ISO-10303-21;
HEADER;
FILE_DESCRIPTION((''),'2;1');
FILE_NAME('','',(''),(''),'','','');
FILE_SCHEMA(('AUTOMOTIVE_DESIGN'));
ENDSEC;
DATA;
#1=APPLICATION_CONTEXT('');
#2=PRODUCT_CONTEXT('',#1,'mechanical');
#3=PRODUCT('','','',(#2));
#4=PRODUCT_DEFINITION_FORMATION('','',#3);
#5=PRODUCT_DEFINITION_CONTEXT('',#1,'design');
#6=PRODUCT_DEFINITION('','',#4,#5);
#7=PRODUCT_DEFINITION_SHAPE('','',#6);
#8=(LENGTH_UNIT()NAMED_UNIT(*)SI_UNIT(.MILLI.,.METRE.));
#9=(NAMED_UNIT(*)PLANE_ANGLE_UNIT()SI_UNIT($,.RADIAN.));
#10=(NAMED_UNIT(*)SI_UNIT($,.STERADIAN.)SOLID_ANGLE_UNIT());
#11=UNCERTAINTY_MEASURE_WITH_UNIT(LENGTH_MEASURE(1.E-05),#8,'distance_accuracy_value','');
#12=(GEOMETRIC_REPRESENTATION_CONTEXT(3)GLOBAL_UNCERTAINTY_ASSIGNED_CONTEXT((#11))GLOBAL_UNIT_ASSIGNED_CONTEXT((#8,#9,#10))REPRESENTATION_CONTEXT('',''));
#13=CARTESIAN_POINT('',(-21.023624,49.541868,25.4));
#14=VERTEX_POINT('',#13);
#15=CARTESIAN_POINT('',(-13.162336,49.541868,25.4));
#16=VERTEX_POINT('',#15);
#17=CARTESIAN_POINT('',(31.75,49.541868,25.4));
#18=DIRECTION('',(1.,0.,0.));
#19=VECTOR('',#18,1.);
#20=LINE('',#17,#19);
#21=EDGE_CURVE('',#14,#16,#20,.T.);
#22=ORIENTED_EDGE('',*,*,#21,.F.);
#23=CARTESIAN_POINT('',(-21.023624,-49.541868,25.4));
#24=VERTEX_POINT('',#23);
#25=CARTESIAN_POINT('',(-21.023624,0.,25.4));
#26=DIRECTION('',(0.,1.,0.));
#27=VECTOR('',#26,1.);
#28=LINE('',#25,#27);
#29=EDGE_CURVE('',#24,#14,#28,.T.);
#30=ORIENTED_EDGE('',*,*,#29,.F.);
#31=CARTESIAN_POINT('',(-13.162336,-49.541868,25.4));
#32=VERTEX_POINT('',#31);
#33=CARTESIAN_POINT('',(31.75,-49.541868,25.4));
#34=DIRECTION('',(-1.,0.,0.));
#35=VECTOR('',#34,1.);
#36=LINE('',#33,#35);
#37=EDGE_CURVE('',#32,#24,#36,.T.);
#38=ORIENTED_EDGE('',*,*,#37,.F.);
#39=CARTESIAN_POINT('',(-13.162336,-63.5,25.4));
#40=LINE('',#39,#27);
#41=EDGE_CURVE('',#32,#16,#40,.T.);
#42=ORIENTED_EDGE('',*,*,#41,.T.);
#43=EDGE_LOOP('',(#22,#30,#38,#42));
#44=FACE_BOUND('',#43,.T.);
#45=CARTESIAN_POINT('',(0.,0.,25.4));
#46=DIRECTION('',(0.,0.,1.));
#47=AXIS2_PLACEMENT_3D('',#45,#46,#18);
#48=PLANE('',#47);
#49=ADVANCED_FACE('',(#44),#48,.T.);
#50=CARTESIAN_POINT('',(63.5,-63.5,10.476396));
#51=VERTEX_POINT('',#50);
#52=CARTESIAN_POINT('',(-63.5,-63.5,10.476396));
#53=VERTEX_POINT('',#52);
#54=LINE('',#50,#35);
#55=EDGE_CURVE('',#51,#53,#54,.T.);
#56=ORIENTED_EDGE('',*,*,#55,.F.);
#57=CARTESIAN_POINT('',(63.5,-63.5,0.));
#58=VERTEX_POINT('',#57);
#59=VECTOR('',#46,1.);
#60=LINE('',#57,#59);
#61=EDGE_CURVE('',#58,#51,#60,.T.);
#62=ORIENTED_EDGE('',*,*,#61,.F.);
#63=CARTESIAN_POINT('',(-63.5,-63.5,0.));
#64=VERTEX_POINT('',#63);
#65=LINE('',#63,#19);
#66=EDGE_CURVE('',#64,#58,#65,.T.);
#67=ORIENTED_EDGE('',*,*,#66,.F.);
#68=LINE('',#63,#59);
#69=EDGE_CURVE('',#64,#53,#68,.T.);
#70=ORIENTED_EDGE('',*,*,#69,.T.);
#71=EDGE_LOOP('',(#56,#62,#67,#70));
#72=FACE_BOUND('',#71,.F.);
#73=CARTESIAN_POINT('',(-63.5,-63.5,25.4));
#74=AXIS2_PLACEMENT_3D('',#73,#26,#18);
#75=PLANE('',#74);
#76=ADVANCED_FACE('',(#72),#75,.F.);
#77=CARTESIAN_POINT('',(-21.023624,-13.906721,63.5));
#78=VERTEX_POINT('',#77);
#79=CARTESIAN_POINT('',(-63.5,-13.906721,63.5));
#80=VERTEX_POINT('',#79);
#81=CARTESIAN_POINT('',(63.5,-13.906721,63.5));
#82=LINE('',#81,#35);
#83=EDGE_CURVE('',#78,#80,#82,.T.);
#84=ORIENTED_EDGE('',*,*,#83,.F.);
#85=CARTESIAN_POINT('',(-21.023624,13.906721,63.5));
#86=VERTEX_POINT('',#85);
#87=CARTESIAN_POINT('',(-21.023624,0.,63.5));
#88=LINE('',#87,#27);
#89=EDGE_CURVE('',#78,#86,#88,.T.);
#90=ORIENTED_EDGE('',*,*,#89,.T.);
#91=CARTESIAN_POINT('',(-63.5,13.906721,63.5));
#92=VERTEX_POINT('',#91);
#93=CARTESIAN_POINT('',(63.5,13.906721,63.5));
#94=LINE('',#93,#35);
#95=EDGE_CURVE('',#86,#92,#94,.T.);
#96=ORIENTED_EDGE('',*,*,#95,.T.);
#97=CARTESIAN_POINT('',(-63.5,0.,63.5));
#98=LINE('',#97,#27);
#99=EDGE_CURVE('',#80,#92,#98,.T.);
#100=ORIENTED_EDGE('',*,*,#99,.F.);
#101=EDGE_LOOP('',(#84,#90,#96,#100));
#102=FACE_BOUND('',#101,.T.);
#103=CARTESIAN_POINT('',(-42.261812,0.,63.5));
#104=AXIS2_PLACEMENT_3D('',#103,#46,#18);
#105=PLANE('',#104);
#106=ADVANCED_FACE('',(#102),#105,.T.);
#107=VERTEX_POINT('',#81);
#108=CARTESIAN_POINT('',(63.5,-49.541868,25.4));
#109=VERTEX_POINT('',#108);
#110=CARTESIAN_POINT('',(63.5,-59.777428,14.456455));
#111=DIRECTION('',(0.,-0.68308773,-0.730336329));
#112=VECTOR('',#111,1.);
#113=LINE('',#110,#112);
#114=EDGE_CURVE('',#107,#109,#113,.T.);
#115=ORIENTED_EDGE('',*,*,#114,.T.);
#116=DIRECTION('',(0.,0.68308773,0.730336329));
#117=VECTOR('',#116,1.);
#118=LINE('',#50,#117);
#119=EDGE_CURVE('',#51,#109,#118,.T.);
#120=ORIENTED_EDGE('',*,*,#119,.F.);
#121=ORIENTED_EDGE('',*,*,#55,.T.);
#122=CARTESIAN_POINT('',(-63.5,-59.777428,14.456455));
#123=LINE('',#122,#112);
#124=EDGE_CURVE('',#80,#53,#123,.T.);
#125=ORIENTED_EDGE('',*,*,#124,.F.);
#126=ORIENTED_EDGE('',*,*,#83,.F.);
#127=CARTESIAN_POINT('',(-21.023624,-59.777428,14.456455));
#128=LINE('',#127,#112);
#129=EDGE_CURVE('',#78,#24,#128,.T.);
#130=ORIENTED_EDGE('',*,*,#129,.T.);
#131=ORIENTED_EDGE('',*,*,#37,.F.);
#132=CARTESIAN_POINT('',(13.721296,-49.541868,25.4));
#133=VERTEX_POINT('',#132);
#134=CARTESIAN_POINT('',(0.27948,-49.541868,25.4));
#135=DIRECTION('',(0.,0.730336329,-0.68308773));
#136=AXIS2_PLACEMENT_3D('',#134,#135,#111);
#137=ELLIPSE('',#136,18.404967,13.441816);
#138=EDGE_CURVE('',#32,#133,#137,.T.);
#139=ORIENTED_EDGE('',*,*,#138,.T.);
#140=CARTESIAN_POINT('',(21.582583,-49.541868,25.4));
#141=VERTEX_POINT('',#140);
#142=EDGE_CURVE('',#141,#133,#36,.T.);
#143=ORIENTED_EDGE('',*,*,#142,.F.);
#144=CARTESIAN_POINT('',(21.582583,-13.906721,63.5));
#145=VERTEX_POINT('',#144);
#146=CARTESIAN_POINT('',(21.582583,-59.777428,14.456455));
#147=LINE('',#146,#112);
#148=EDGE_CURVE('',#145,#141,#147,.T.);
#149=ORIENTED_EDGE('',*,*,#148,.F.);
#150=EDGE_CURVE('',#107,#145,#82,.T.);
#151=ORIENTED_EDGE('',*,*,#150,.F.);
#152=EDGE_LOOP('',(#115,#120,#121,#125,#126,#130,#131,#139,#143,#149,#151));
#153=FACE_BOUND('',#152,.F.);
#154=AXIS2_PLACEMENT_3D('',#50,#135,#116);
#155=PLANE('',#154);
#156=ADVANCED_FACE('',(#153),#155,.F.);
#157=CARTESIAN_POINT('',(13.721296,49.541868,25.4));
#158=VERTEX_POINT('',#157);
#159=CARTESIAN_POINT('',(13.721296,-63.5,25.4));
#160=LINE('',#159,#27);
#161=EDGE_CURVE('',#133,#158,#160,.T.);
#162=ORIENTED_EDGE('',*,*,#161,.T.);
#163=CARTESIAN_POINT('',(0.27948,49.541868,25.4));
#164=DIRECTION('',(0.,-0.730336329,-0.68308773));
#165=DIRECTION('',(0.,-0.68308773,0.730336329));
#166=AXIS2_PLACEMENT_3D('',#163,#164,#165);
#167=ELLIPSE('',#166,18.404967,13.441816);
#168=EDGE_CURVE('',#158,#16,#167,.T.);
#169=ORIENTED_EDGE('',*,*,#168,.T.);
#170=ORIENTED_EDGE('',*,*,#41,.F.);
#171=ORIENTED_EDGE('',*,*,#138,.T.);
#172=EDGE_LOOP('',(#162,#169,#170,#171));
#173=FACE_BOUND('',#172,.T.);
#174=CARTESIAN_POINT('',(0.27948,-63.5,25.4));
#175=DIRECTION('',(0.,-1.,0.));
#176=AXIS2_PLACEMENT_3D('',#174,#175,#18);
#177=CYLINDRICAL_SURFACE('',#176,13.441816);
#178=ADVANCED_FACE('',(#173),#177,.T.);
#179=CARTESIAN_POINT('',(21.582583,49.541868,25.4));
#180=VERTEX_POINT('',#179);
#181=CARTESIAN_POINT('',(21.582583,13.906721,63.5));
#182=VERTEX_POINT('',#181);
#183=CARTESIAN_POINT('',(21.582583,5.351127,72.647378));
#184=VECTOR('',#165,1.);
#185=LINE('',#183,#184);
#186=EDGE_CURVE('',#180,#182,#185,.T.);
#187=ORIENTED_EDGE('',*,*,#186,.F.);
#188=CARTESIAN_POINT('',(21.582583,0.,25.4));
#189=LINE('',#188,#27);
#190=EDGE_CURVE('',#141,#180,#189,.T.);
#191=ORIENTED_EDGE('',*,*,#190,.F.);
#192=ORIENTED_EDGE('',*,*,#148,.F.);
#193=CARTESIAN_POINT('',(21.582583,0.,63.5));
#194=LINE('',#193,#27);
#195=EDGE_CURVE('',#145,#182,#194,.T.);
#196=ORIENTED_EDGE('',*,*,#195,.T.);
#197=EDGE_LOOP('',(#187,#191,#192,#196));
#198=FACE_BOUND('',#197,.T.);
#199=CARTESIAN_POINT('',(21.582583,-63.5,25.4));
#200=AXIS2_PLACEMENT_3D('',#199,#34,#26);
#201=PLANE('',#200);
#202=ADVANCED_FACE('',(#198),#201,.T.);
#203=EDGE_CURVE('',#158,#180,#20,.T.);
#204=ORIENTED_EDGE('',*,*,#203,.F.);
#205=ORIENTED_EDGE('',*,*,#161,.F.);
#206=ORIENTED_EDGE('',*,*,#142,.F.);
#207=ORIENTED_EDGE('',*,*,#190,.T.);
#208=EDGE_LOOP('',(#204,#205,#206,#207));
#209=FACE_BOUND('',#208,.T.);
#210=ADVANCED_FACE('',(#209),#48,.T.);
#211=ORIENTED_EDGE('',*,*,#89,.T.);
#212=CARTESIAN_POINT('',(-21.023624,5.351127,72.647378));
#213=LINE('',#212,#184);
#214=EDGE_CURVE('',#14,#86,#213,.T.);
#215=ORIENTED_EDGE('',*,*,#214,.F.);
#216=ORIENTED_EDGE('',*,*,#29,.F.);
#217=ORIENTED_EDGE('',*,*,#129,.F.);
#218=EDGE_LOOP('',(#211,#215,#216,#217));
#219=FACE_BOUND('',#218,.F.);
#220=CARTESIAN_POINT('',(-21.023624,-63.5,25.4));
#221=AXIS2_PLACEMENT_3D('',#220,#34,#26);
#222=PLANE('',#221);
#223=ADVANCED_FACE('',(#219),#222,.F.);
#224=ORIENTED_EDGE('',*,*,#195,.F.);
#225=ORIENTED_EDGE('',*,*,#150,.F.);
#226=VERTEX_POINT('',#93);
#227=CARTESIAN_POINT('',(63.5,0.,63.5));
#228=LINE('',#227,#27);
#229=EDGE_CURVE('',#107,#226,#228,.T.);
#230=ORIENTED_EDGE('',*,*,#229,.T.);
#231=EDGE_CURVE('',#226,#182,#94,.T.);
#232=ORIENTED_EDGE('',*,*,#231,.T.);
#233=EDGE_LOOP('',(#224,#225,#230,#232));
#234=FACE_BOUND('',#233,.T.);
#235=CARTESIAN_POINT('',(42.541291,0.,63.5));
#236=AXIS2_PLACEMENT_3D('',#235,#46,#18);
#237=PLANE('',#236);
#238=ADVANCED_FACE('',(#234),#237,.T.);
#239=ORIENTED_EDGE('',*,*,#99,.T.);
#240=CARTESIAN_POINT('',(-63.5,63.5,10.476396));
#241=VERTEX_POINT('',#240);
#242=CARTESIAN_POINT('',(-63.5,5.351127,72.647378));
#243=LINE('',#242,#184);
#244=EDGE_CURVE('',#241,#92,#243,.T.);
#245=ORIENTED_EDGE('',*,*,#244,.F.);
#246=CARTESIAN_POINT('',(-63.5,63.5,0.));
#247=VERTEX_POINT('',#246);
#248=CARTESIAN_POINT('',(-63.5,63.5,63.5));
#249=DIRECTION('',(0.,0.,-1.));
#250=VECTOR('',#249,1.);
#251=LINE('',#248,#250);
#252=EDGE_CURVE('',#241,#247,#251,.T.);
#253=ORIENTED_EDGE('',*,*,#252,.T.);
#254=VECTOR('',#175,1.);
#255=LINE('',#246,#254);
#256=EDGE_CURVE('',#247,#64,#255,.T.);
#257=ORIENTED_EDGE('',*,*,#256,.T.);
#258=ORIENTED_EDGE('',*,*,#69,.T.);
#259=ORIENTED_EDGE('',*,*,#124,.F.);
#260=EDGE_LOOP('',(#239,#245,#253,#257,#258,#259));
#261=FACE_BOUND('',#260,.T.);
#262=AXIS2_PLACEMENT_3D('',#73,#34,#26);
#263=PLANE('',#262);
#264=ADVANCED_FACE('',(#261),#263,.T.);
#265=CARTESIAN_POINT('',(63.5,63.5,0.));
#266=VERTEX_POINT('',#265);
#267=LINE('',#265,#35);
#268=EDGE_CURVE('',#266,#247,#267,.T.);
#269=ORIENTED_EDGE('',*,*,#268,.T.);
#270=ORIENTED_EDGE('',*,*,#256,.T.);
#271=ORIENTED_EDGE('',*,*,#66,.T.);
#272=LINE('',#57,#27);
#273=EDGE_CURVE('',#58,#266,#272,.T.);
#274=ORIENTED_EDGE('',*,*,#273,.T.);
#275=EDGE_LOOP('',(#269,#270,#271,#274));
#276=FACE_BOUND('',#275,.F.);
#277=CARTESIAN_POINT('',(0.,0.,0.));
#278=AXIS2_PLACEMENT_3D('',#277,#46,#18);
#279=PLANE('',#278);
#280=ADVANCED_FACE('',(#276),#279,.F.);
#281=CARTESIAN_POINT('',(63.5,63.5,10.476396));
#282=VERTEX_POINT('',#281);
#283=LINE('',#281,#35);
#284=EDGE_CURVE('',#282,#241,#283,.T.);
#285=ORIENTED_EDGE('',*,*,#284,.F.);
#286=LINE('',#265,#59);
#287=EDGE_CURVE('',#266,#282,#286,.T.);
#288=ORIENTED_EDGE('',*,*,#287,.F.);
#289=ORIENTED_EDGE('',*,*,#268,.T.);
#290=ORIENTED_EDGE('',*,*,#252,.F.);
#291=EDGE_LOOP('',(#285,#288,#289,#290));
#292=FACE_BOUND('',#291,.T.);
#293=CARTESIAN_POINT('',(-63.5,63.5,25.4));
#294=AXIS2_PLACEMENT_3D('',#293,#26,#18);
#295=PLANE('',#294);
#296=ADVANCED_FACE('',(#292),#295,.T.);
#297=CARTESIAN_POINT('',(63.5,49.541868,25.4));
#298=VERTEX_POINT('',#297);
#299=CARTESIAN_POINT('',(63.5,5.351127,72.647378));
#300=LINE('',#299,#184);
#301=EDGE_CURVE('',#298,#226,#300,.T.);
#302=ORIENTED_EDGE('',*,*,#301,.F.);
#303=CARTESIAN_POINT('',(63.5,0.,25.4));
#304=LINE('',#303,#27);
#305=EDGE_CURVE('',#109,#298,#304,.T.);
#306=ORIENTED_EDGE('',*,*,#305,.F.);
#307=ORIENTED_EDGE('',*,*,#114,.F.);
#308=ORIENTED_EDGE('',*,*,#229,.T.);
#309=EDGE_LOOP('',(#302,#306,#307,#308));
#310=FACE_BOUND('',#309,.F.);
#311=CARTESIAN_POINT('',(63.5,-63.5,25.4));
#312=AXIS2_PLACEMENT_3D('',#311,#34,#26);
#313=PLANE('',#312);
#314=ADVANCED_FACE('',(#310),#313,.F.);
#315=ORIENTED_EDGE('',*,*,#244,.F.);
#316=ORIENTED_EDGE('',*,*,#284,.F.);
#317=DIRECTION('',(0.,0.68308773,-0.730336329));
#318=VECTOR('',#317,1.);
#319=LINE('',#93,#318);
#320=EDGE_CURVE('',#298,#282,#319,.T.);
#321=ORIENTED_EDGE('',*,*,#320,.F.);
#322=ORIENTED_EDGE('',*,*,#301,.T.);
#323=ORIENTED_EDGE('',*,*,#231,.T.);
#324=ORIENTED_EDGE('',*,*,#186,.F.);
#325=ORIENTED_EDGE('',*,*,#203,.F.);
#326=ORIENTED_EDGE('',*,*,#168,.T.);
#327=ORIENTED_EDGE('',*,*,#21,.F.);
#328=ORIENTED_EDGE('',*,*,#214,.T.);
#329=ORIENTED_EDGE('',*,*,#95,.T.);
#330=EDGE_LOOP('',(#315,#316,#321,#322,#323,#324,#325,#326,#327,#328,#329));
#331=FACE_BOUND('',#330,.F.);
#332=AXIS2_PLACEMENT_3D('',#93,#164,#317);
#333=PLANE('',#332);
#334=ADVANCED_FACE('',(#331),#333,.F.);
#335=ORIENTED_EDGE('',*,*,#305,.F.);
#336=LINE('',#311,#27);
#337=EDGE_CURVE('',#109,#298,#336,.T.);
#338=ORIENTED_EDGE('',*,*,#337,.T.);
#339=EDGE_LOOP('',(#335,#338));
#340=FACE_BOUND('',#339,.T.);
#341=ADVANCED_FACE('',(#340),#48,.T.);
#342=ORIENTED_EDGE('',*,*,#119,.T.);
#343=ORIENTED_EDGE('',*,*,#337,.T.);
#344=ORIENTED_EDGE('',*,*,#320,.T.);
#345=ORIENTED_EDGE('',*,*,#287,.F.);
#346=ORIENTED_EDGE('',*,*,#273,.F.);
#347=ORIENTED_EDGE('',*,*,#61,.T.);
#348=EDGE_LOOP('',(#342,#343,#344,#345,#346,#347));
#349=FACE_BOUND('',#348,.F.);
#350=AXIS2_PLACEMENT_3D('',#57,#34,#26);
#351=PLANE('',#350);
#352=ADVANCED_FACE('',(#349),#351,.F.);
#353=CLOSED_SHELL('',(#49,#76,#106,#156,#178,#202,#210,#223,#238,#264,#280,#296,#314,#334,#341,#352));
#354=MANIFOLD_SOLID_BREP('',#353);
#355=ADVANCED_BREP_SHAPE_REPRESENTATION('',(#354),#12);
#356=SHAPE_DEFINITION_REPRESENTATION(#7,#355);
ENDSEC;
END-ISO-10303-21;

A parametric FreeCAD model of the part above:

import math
import FreeCAD as App
import Part
import Sketcher
from FreeCAD import Vector
Q = App.Units.Quantity

doc = App.newDocument("Part")
body = doc.addObject("PartDesign::Body", "Body")

sketch1 = body.newObject("Sketcher::SketchObject", "Sketch")
sketch1.AttachmentSupport = (doc.getObject("XY_Plane"), [""])
sketch1.MapMode = "FlatFace"
sketch1.addGeometry([
    Part.LineSegment(Vector(64, 64, 0), Vector(-64, 64, 0)),
    Part.LineSegment(Vector(-64, 64, 0), Vector(-64, -64, 0)),
    Part.LineSegment(Vector(-64, -64, 0), Vector(64, -64, 0)),
    Part.LineSegment(Vector(64, -64, 0), Vector(64, 64, 0)),
], False)
sketch1.addConstraint([
    Sketcher.Constraint("Coincident", 0, 2, 1, 1),
    Sketcher.Constraint("Coincident", 1, 2, 2, 1),
    Sketcher.Constraint("Coincident", 2, 2, 3, 1),
    Sketcher.Constraint("Coincident", 3, 2, 0, 1),
    Sketcher.Constraint("Horizontal", 0),
    Sketcher.Constraint("Vertical", 1),
    Sketcher.Constraint("Horizontal", 2),
    Sketcher.Constraint("Vertical", 3),
    Sketcher.Constraint("Symmetric", 0, 2, 2, 2, -1, 1),
    Sketcher.Constraint("Equal", 2, 1),
    Sketcher.Constraint("DistanceX", 0, 2, 0, 1, Q("5 in")),
])
pad1 = body.newObject("PartDesign::Pad", "Pad")
pad1.Profile = sketch1
pad1.Length = Q("1 in")

sketch2 = body.newObject("Sketcher::SketchObject", "Sketch001")
sketch2.AttachmentSupport = (doc.getObject("XY_Plane"), [""])
sketch2.MapMode = "FlatFace"
sketch2.AttachmentOffset = App.Placement(Vector(0, 0, 1 * 25.4), App.Rotation())
sketch2.addGeometry([
    Part.LineSegment(Vector(-64, 64, 0), Vector(-64, -64, 0)),
    Part.LineSegment(Vector(-64, -64, 0), Vector(-21, -64, 0)),
    Part.LineSegment(Vector(-21, -64, 0), Vector(-21, 64, 0)),
    Part.LineSegment(Vector(-21, 64, 0), Vector(-64, 64, 0)),
], False)
sketch2.addConstraint([
    Sketcher.Constraint("Coincident", 0, 2, 1, 1),
    Sketcher.Constraint("Coincident", 1, 2, 2, 1),
    Sketcher.Constraint("Coincident", 2, 2, 3, 1),
    Sketcher.Constraint("Coincident", 3, 2, 0, 1),
    Sketcher.Constraint("Vertical", 0),
    Sketcher.Constraint("Horizontal", 1),
    Sketcher.Constraint("Vertical", 2),
    Sketcher.Constraint("Horizontal", 3),
    Sketcher.Constraint("DistanceY", 0, 2, 0, 1, Q("5 in")),
    Sketcher.Constraint("DistanceX", 0, 2, -1, 1, Q("2.5 in")),
    Sketcher.Constraint("DistanceY", 0, 2, -1, 1, Q("2.5 in")),
    Sketcher.Constraint("DistanceX", 1, 1, 1, 2, Q("42.476376 mm")),
])
pad2 = body.newObject("PartDesign::Pad", "Pad001")
pad2.Profile = sketch2
pad2.Length = Q("1.5 in")

sketch3 = body.newObject("Sketcher::SketchObject", "Sketch002")
sketch3.AttachmentSupport = (doc.getObject("XY_Plane"), [""])
sketch3.MapMode = "FlatFace"
sketch3.AttachmentOffset = App.Placement(Vector(0, 0, 1 * 25.4), App.Rotation())
sketch3.addGeometry([
    Part.LineSegment(Vector(22, 64, 0), Vector(22, -64, 0)),
    Part.LineSegment(Vector(22, -64, 0), Vector(63, -64, 0)),
    Part.LineSegment(Vector(63, -64, 0), Vector(63, 64, 0)),
    Part.LineSegment(Vector(63, 64, 0), Vector(22, 64, 0)),
], False)
sketch3.addConstraint([
    Sketcher.Constraint("Coincident", 0, 2, 1, 1),
    Sketcher.Constraint("Coincident", 1, 2, 2, 1),
    Sketcher.Constraint("Coincident", 2, 2, 3, 1),
    Sketcher.Constraint("Coincident", 3, 2, 0, 1),
    Sketcher.Constraint("Vertical", 0),
    Sketcher.Constraint("Horizontal", 1),
    Sketcher.Constraint("Vertical", 2),
    Sketcher.Constraint("Horizontal", 3),
    Sketcher.Constraint("DistanceY", 0, 2, 0, 1, Q("5 in")),
    Sketcher.Constraint("DistanceY", 0, 2, -1, 1, Q("2.5 in")),
    Sketcher.Constraint("DistanceX", -1, 1, 1, 2, Q("2.5 in")),
    Sketcher.Constraint("DistanceX", 1, 1, 1, 2, Q("41.917417 mm")),
])
pad3 = body.newObject("PartDesign::Pad", "Pad002")
pad3.Profile = sketch3
pad3.Length = Q("1.5 in")

sketch4 = body.newObject("Sketcher::SketchObject", "Sketch003")
sketch4.AttachmentSupport = (doc.getObject("XZ_Plane"), [""])
sketch4.MapMode = "FlatFace"
sketch4.AttachmentOffset = App.Placement(Vector(0, 0, 2.5 * 25.4), App.Rotation())
sketch4.addGeometry([
    Part.LineSegment(Vector(-13, 25, 0), Vector(14, 25, 0)),
    Part.ArcOfCircle(Part.Circle(Vector(0, 25, 0), Vector(0, 0, 1), 13), math.radians(0), math.radians(180)),
], False)
sketch4.addConstraint([
    Sketcher.Constraint("Coincident", 0, 1, 1, 2),
    Sketcher.Constraint("Coincident", 1, 1, 0, 2),
    Sketcher.Constraint("Horizontal", 0),
    Sketcher.Constraint("Horizontal", 1, 3, 0, 1),
    Sketcher.Constraint("DistanceY", -1, 1, 1, 3, Q("1 in")),
    Sketcher.Constraint("Radius", 1, Q("13.441816 mm")),
    Sketcher.Constraint("DistanceX", -1, 1, 1, 3, Q("0.27948 mm")),
])
pad4 = body.newObject("PartDesign::Pad", "Pad003")
pad4.Profile = sketch4
pad4.Length = Q("5 in")
pad4.Reversed = True

sketch5 = body.newObject("Sketcher::SketchObject", "Sketch004")
sketch5.AttachmentSupport = (doc.getObject("YZ_Plane"), [""])
sketch5.MapMode = "FlatFace"
sketch5.AttachmentOffset = App.Placement(Vector(0, 0, 2.5 * 25.4), App.Rotation())
sketch5.addGeometry([
    Part.LineSegment(Vector(-64, 10, 0), Vector(-14, 64, 0)),
    Part.LineSegment(Vector(-14, 64, 0), Vector(-64, 64, 0)),
    Part.LineSegment(Vector(-64, 64, 0), Vector(-64, 10, 0)),
    Part.LineSegment(Vector(64, 10, 0), Vector(64, 64, 0)),
    Part.LineSegment(Vector(64, 64, 0), Vector(14, 64, 0)),
    Part.LineSegment(Vector(14, 64, 0), Vector(64, 10, 0)),
], False)
sketch5.addConstraint([
    Sketcher.Constraint("Coincident", 0, 2, 1, 1),
    Sketcher.Constraint("Coincident", 1, 2, 2, 1),
    Sketcher.Constraint("Coincident", 2, 2, 0, 1),
    Sketcher.Constraint("Coincident", 3, 2, 4, 1),
    Sketcher.Constraint("Coincident", 4, 2, 5, 1),
    Sketcher.Constraint("Coincident", 5, 2, 3, 1),
    Sketcher.Constraint("Horizontal", 1),
    Sketcher.Constraint("Vertical", 2),
    Sketcher.Constraint("Vertical", 3),
    Sketcher.Constraint("Horizontal", 4),
    Sketcher.Constraint("Symmetric", 1, 2, 3, 2, -2),
    Sketcher.Constraint("Horizontal", 2, 2, 5, 2),
    Sketcher.Constraint("Equal", 1, 4),
    Sketcher.Constraint("DistanceX", 1, 2, 3, 2, Q("5 in")),
    Sketcher.Constraint("DistanceY", -1, 1, 0, 2, Q("2.5 in")),
    Sketcher.Constraint("DistanceX", 1, 2, 1, 1, Q("49.593279 mm")),
    Sketcher.Constraint("DistanceY", 2, 2, 2, 1, Q("53.023604 mm")),
])
pocket1 = body.newObject("PartDesign::Pocket", "Pocket")
pocket1.Profile = sketch5
pocket1.Type = "ThroughAll"

doc.recompute()
